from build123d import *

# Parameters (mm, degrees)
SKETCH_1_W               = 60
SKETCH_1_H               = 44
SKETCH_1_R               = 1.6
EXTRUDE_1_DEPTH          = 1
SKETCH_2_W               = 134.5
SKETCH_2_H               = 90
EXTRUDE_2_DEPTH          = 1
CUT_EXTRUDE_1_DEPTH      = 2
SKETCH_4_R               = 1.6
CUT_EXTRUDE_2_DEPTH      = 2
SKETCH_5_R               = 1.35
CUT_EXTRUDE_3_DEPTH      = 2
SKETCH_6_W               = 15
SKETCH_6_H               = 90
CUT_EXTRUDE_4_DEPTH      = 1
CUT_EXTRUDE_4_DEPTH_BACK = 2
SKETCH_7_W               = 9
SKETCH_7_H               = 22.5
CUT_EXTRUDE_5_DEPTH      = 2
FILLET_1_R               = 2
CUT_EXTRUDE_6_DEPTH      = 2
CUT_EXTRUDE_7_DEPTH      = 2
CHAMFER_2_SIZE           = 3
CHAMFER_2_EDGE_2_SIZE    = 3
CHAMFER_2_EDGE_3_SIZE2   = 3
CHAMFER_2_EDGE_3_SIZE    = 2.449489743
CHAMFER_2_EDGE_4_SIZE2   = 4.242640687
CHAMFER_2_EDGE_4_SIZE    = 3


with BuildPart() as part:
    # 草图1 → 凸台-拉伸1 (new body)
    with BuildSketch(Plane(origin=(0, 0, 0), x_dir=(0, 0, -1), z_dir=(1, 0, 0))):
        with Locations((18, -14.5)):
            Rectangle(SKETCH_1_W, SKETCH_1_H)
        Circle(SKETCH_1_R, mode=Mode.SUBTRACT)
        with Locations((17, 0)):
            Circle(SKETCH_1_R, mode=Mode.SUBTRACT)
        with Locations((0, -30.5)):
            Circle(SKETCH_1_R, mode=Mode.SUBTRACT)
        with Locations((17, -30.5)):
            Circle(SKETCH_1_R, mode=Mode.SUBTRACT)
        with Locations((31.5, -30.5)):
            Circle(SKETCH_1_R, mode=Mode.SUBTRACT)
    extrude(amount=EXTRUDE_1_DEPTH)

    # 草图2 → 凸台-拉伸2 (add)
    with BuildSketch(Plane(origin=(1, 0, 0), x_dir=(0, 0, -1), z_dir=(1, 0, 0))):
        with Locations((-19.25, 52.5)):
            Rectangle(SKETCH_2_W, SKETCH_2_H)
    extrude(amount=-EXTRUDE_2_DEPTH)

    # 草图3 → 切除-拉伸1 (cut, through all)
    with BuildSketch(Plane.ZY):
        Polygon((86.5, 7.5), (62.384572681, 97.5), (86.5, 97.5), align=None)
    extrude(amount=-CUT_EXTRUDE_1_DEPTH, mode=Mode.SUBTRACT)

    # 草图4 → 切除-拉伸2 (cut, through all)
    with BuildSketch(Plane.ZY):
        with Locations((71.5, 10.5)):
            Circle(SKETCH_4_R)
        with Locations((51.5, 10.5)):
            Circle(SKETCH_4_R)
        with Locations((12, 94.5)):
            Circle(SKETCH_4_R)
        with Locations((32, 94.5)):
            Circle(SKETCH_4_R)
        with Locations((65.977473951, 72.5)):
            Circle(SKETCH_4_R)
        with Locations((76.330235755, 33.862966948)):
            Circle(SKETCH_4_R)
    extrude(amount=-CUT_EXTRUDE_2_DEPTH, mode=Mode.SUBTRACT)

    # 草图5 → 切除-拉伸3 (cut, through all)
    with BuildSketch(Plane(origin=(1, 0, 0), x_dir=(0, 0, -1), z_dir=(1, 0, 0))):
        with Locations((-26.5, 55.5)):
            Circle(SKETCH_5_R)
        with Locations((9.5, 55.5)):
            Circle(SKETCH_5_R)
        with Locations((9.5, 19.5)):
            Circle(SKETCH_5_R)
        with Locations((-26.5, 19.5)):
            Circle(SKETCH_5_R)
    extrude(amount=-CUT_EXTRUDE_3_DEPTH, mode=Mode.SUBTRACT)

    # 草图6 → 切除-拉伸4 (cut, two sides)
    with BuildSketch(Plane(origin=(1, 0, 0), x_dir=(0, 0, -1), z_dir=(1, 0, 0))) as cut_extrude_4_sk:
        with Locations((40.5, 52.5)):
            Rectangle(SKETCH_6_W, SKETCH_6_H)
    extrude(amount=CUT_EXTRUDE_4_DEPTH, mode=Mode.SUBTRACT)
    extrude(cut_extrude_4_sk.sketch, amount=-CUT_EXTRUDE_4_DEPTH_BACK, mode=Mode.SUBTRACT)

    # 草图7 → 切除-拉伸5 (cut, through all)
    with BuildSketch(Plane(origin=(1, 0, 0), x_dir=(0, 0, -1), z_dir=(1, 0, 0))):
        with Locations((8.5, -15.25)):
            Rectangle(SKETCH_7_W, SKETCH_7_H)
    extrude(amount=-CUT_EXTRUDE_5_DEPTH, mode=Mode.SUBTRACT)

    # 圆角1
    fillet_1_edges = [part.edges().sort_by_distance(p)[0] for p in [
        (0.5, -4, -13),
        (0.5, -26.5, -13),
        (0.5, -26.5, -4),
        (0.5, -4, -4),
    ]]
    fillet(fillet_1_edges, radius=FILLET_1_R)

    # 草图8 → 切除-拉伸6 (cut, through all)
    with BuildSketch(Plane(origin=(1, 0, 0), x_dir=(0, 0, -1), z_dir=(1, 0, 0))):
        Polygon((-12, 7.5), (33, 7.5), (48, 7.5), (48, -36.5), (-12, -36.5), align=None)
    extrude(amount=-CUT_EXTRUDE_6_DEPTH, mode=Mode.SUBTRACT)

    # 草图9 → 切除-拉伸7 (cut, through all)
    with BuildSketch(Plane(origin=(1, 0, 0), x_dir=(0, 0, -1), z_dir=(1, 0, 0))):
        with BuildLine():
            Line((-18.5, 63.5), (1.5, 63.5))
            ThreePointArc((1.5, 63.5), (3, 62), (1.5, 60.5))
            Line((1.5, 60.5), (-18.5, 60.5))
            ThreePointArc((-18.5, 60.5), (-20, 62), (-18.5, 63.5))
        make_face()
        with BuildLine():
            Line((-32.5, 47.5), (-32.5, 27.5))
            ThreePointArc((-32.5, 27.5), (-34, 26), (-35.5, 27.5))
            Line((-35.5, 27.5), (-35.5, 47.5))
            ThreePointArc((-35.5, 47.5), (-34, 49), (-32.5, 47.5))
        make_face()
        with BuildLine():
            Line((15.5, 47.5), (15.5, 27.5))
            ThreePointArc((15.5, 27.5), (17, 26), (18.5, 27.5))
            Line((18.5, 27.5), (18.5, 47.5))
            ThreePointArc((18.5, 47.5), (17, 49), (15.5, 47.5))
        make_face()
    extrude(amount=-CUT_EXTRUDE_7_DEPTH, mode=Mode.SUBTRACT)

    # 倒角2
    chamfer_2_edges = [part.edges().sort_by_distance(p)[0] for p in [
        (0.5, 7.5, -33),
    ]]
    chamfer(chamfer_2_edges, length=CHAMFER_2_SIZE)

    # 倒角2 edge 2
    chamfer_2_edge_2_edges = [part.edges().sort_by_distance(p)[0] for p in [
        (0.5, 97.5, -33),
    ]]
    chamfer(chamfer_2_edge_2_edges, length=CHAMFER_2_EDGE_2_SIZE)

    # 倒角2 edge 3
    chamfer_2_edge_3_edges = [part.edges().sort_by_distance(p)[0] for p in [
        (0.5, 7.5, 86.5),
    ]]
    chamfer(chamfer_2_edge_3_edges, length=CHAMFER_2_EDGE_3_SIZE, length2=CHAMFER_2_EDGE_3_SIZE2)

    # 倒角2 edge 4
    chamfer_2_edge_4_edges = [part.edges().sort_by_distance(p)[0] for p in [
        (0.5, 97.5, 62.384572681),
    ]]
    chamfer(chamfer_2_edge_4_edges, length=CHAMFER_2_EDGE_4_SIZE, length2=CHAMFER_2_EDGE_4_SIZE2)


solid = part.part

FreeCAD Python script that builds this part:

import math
import FreeCAD as App
import Part
import Sketcher
Q = App.Units.Quantity


def edges_at(feature, points):
    """Names of the edges that pass closest to the given points."""
    edges = feature.Shape.Edges
    near = lambda p: min(range(len(edges)), key=lambda i: edges[i].distToShape(Part.Vertex(*p))[0])
    return sorted({f"Edge{near(p) + 1}" for p in points})

doc = App.newDocument("Part")
body = doc.addObject("PartDesign::Body", "Body")

# Sketch on YZ plane
sketch1 = doc.addObject("Sketcher::SketchObject", "Sketch")
body.addObject(sketch1)
sketch1.AttachmentSupport = (doc.YZ_Plane, [""])
sketch1.MapMode = "FlatFace"
sketch1.addGeometry(Part.LineSegment(App.Vector(7.5, 12, 0), App.Vector(-36.5, 12, 0)), False)
sketch1.addGeometry(Part.LineSegment(App.Vector(-36.5, 12, 0), App.Vector(-36.5, -48, 0)), False)
sketch1.addGeometry(Part.LineSegment(App.Vector(-36.5, -48, 0), App.Vector(7.5, -48, 0)), False)
sketch1.addGeometry(Part.LineSegment(App.Vector(7.5, -48, 0), App.Vector(7.5, 12, 0)), False)
sketch1.addGeometry(Part.Circle(App.Vector(-30.5, 0, 0), App.Vector(0, 0, 1), 1.6), False)
sketch1.addGeometry(Part.Circle(App.Vector(-30.5, -17, 0), App.Vector(0, 0, 1), 1.6), False)
sketch1.addGeometry(Part.Circle(App.Vector(-30.5, -31.5, 0), App.Vector(0, 0, 1), 1.6), False)
sketch1.addGeometry(Part.Circle(App.Vector(0, 0, 0), App.Vector(0, 0, 1), 1.6), False)
sketch1.addGeometry(Part.Circle(App.Vector(0, -17, 0), App.Vector(0, 0, 1), 1.6), False)
sketch1.addConstraint(Sketcher.Constraint("Coincident", 0, 2, 1, 1))
sketch1.addConstraint(Sketcher.Constraint("Coincident", 1, 2, 2, 1))
sketch1.addConstraint(Sketcher.Constraint("Coincident", 2, 2, 3, 1))
sketch1.addConstraint(Sketcher.Constraint("Coincident", 3, 2, 0, 1))
sketch1.addConstraint(Sketcher.Constraint("Horizontal", 0))
sketch1.addConstraint(Sketcher.Constraint("Vertical", 1))
sketch1.addConstraint(Sketcher.Constraint("Horizontal", 2))
sketch1.addConstraint(Sketcher.Constraint("Vertical", 3))
sketch1.addConstraint(Sketcher.Constraint("Coincident", 7, 3, -1, 1))
sketch1.addConstraint(Sketcher.Constraint("Equal", 4, 5))
sketch1.addConstraint(Sketcher.Constraint("Equal", 5, 6))
sketch1.addConstraint(Sketcher.Constraint("Equal", 6, 7))
sketch1.addConstraint(Sketcher.Constraint("Equal", 7, 8))
sketch1.addConstraint(Sketcher.Constraint("PointOnObject", 4, 3, -1))
sketch1.addConstraint(Sketcher.Constraint("PointOnObject", 8, 3, -2))
sketch1.addConstraint(Sketcher.Constraint("Horizontal", 5, 3, 8, 3))
sketch1.addConstraint(Sketcher.Constraint("Vertical", 4, 3, 5, 3))
sketch1.addConstraint(Sketcher.Constraint("Vertical", 5, 3, 6, 3))
sketch1.addConstraint(Sketcher.Constraint("Diameter", 4, 3.2))
sketch1.addConstraint(Sketcher.Constraint("DistanceX", 0, 2, 0, 1, 44.0))
sketch1.addConstraint(Sketcher.Constraint("DistanceY", 1, 2, 1, 1, 60.0))
sketch1.addConstraint(Sketcher.Constraint("DistanceY", 5, 3, -1, 1, 17.0))
sketch1.addConstraint(Sketcher.Constraint("DistanceY", -1, 1, 0, 2, 12.0))
sketch1.addConstraint(Sketcher.Constraint("DistanceX", 0, 2, 4, 3, 6.0))
sketch1.addConstraint(Sketcher.Constraint("DistanceX", 4, 3, -1, 1, 30.5))
sketch1.addConstraint(Sketcher.Constraint("DistanceY", 6, 3, -1, 1, 31.5))
pad1 = doc.addObject("PartDesign::Pad", "Pad")
body.addObject(pad1)
pad1.Profile = sketch1
pad1.Length = 1

# Sketch on YZ plane
sketch2 = doc.addObject("Sketcher::SketchObject", "Sketch001")
body.addObject(sketch2)
sketch2.AttachmentSupport = (doc.YZ_Plane, [""])
sketch2.MapMode = "FlatFace"
sketch2.AttachmentOffset = App.Placement(App.Vector(0, 0, 1), App.Rotation())
sketch2.addGeometry(Part.LineSegment(App.Vector(97.5, 86.5, 0), App.Vector(7.5, 86.5, 0)), False)
sketch2.addGeometry(Part.LineSegment(App.Vector(7.5, 86.5, 0), App.Vector(7.5, -48, 0)), False)
sketch2.addGeometry(Part.LineSegment(App.Vector(7.5, -48, 0), App.Vector(97.5, -48, 0)), False)
sketch2.addGeometry(Part.LineSegment(App.Vector(97.5, -48, 0), App.Vector(97.5, 86.5, 0)), False)
sketch2.addConstraint(Sketcher.Constraint("Coincident", 0, 2, 1, 1))
sketch2.addConstraint(Sketcher.Constraint("Coincident", 1, 2, 2, 1))
sketch2.addConstraint(Sketcher.Constraint("Coincident", 2, 2, 3, 1))
sketch2.addConstraint(Sketcher.Constraint("Coincident", 3, 2, 0, 1))
sketch2.addConstraint(Sketcher.Constraint("Horizontal", 0))
sketch2.addConstraint(Sketcher.Constraint("Vertical", 1))
sketch2.addConstraint(Sketcher.Constraint("Horizontal", 2))
sketch2.addConstraint(Sketcher.Constraint("Vertical", 3))
sketch2.addConstraint(Sketcher.Constraint("DistanceX", 0, 2, 0, 1, 90.0))
sketch2.addConstraint(Sketcher.Constraint("DistanceY", 1, 2, 1, 1, 134.5))
sketch2.addConstraint(Sketcher.Constraint("DistanceY", 1, 2, -1, 1, 48.0))
sketch2.addConstraint(Sketcher.Constraint("DistanceX", -1, 1, 0, 2, 7.5))
pad2 = doc.addObject("PartDesign::Pad", "Pad001")
body.addObject(pad2)
pad2.Profile = sketch2
pad2.Length = 1
pad2.Reversed = True

# Sketch on YZ plane
sketch3 = doc.addObject("Sketcher::SketchObject", "Sketch002")
body.addObject(sketch3)
sketch3.AttachmentSupport = (doc.YZ_Plane, [""])
sketch3.MapMode = "FlatFace"
sketch3.addGeometry(Part.LineSegment(App.Vector(97.5, 62.384573, 0), App.Vector(7.5, 86.5, 0)), False)
sketch3.addGeometry(Part.LineSegment(App.Vector(7.5, 86.5, 0), App.Vector(97.5, 86.5, 0)), False)
sketch3.addGeometry(Part.LineSegment(App.Vector(97.5, 86.5, 0), App.Vector(97.5, 62.384573, 0)), False)
sketch3.addConstraint(Sketcher.Constraint("Coincident", 0, 2, 1, 1))
sketch3.addConstraint(Sketcher.Constraint("Coincident", 1, 2, 2, 1))
sketch3.addConstraint(Sketcher.Constraint("Coincident", 2, 2, 0, 1))
sketch3.addConstraint(Sketcher.Constraint("Horizontal", 1))
sketch3.addConstraint(Sketcher.Constraint("Vertical", 2))
sketch3.addConstraint(Sketcher.Constraint("DistanceX", 1, 1, 1, 2, 90.0))
sketch3.addConstraint(Sketcher.Constraint("Angle", 0, Q("165 deg")))
sketch3.addConstraint(Sketcher.Constraint("DistanceX", -1, 1, 0, 2, 7.5))
sketch3.addConstraint(Sketcher.Constraint("DistanceY", -1, 1, 0, 2, 86.5))
pocket1 = doc.addObject("PartDesign::Pocket", "Pocket")
body.addObject(pocket1)
pocket1.Profile = sketch3
pocket1.Type = "ThroughAll"
pocket1.Reversed = True

# Sketch on YZ plane
sketch4 = doc.addObject("Sketcher::SketchObject", "Sketch003")
body.addObject(sketch4)
sketch4.AttachmentSupport = (doc.YZ_Plane, [""])
sketch4.MapMode = "FlatFace"
sketch4.addGeometry(Part.Circle(App.Vector(10.5, 71.5, 0), App.Vector(0, 0, 1), 1.6), False)
sketch4.addGeometry(Part.Circle(App.Vector(10.5, 51.5, 0), App.Vector(0, 0, 1), 1.6), False)
sketch4.addGeometry(Part.Circle(App.Vector(94.5, 12, 0), App.Vector(0, 0, 1), 1.6), False)
sketch4.addGeometry(Part.Circle(App.Vector(94.5, 32, 0), App.Vector(0, 0, 1), 1.6), False)
sketch4.addGeometry(Part.Circle(App.Vector(72.5, 65.977474, 0), App.Vector(0, 0, 1), 1.6), False)
sketch4.addGeometry(Part.Circle(App.Vector(33.862967, 76.330236, 0), App.Vector(0, 0, 1), 1.6), False)
sketch4.addConstraint(Sketcher.Constraint("Equal", 0, 1))
sketch4.addConstraint(Sketcher.Constraint("Equal", 1, 2))
sketch4.addConstraint(Sketcher.Constraint("Equal", 2, 3))
sketch4.addConstraint(Sketcher.Constraint("Equal", 3, 4))
sketch4.addConstraint(Sketcher.Constraint("Equal", 4, 5))
sketch4.addConstraint(Sketcher.Constraint("Vertical", 0, 3, 1, 3))
sketch4.addConstraint(Sketcher.Constraint("Vertical", 2, 3, 3, 3))
sketch4.addConstraint(Sketcher.Constraint("Diameter", 0, 3.2))
sketch4.addConstraint(Sketcher.Constraint("DistanceY", -1, 1, 2, 3, 12.0))
sketch4.addConstraint(Sketcher.Constraint("DistanceY", -1, 1, 3, 3, 32.0))
sketch4.addConstraint(Sketcher.Constraint("DistanceY", 1, 3, 0, 3, 20.0))
sketch4.addConstraint(Sketcher.Constraint("DistanceX", 1, 3, 2, 3, 84.0))
sketch4.addConstraint(Sketcher.Constraint("DistanceX", 4, 3, 3, 3, 22.0))
sketch4.addConstraint(Sketcher.Constraint("DistanceX", -1, 1, 0, 3, 10.5))
sketch4.addConstraint(Sketcher.Constraint("DistanceY", -1, 1, 0, 3, 71.5))
sketch4.addConstraint(Sketcher.Constraint("DistanceY", 4, 3, 5, 3, 10.352762))
sketch4.addConstraint(Sketcher.Constraint("DistanceY", -1, 1, 4, 3, 65.977474))
sketch4.addConstraint(Sketcher.Constraint("DistanceX", -1, 1, 5, 3, 33.862967))
pocket2 = doc.addObject("PartDesign::Pocket", "Pocket001")
body.addObject(pocket2)
pocket2.Profile = sketch4
pocket2.Type = "ThroughAll"
pocket2.Reversed = True

# Sketch on YZ plane
sketch5 = doc.addObject("Sketcher::SketchObject", "Sketch004")
body.addObject(sketch5)
sketch5.AttachmentSupport = (doc.YZ_Plane, [""])
sketch5.MapMode = "FlatFace"
sketch5.AttachmentOffset = App.Placement(App.Vector(0, 0, 1), App.Rotation())
sketch5.addGeometry(Part.Circle(App.Vector(55.5, 26.5, 0), App.Vector(0, 0, 1), 1.35), False)
sketch5.addGeometry(Part.Circle(App.Vector(55.5, -9.5, 0), App.Vector(0, 0, 1), 1.35), False)
sketch5.addGeometry(Part.Circle(App.Vector(19.5, -9.5, 0), App.Vector(0, 0, 1), 1.35), False)
sketch5.addGeometry(Part.Circle(App.Vector(19.5, 26.5, 0), App.Vector(0, 0, 1), 1.35), False)
sketch5.addConstraint(Sketcher.Constraint("Equal", 0, 1))
sketch5.addConstraint(Sketcher.Constraint("Equal", 1, 2))
sketch5.addConstraint(Sketcher.Constraint("Equal", 2, 3))
sketch5.addConstraint(Sketcher.Constraint("Horizontal", 1, 3, 2, 3))
sketch5.addConstraint(Sketcher.Constraint("Horizontal", 0, 3, 3, 3))
sketch5.addConstraint(Sketcher.Constraint("Vertical", 0, 3, 1, 3))
sketch5.addConstraint(Sketcher.Constraint("Vertical", 2, 3, 3, 3))
sketch5.addConstraint(Sketcher.Constraint("Diameter", 0, 2.7))
sketch5.addConstraint(Sketcher.Constraint("DistanceY", 1, 3, 0, 3, 36.0))
sketch5.addConstraint(Sketcher.Constraint("DistanceX", 2, 3, 1, 3, 36.0))
sketch5.addConstraint(Sketcher.Constraint("DistanceX", -1, 1, 0, 3, 55.5))
sketch5.addConstraint(Sketcher.Constraint("DistanceY", -1, 1, 0, 3, 26.5))
pocket3 = doc.addObject("PartDesign::Pocket", "Pocket002")
body.addObject(pocket3)
pocket3.Profile = sketch5
pocket3.Type = "ThroughAll"

# Sketch on YZ plane
sketch6 = doc.addObject("Sketcher::SketchObject", "Sketch005")
body.addObject(sketch6)
sketch6.AttachmentSupport = (doc.YZ_Plane, [""])
sketch6.MapMode = "FlatFace"
sketch6.AttachmentOffset = App.Placement(App.Vector(0, 0, 1), App.Rotation())
sketch6.addGeometry(Part.LineSegment(App.Vector(97.5, -33, 0), App.Vector(7.5, -33, 0)), False)
sketch6.addGeometry(Part.LineSegment(App.Vector(7.5, -33, 0), App.Vector(7.5, -48, 0)), False)
sketch6.addGeometry(Part.LineSegment(App.Vector(7.5, -48, 0), App.Vector(97.5, -48, 0)), False)
sketch6.addGeometry(Part.LineSegment(App.Vector(97.5, -48, 0), App.Vector(97.5, -33, 0)), False)
sketch6.addConstraint(Sketcher.Constraint("Coincident", 0, 2, 1, 1))
sketch6.addConstraint(Sketcher.Constraint("Coincident", 1, 2, 2, 1))
sketch6.addConstraint(Sketcher.Constraint("Coincident", 2, 2, 3, 1))
sketch6.addConstraint(Sketcher.Constraint("Coincident", 3, 2, 0, 1))
sketch6.addConstraint(Sketcher.Constraint("Horizontal", 0))
sketch6.addConstraint(Sketcher.Constraint("Vertical", 1))
sketch6.addConstraint(Sketcher.Constraint("Horizontal", 2))
sketch6.addConstraint(Sketcher.Constraint("Vertical", 3))
sketch6.addConstraint(Sketcher.Constraint("DistanceX", 0, 2, 0, 1, 90.0))
sketch6.addConstraint(Sketcher.Constraint("DistanceY", 1, 2, 1, 1, 15.0))
sketch6.addConstraint(Sketcher.Constraint("DistanceY", 0, 2, -1, 1, 33.0))
sketch6.addConstraint(Sketcher.Constraint("DistanceX", -1, 1, 0, 2, 7.5))
pocket4 = doc.addObject("PartDesign::Pocket", "Pocket003")
body.addObject(pocket4)
pocket4.Profile = sketch6
pocket4.Type = "ThroughAll"
pocket4.Midplane = True

# Sketch on YZ plane
sketch7 = doc.addObject("Sketcher::SketchObject", "Sketch006")
body.addObject(sketch7)
sketch7.AttachmentSupport = (doc.YZ_Plane, [""])
sketch7.MapMode = "FlatFace"
sketch7.AttachmentOffset = App.Placement(App.Vector(0, 0, 1), App.Rotation())
sketch7.addGeometry(Part.LineSegment(App.Vector(-4, -4, 0), App.Vector(-26.5, -4, 0)), False)
sketch7.addGeometry(Part.LineSegment(App.Vector(-26.5, -4, 0), App.Vector(-26.5, -13, 0)), False)
sketch7.addGeometry(Part.LineSegment(App.Vector(-26.5, -13, 0), App.Vector(-4, -13, 0)), False)
sketch7.addGeometry(Part.LineSegment(App.Vector(-4, -13, 0), App.Vector(-4, -4, 0)), False)
sketch7.addConstraint(Sketcher.Constraint("Coincident", 0, 2, 1, 1))
sketch7.addConstraint(Sketcher.Constraint("Coincident", 1, 2, 2, 1))
sketch7.addConstraint(Sketcher.Constraint("Coincident", 2, 2, 3, 1))
sketch7.addConstraint(Sketcher.Constraint("Coincident", 3, 2, 0, 1))
sketch7.addConstraint(Sketcher.Constraint("Horizontal", 0))
sketch7.addConstraint(Sketcher.Constraint("Vertical", 1))
sketch7.addConstraint(Sketcher.Constraint("Horizontal", 2))
sketch7.addConstraint(Sketcher.Constraint("Vertical", 3))
sketch7.addConstraint(Sketcher.Constraint("DistanceY", 1, 2, 1, 1, 9.0))
sketch7.addConstraint(Sketcher.Constraint("DistanceX", 0, 2, 0, 1, 22.5))
sketch7.addConstraint(Sketcher.Constraint("DistanceY", 0, 2, -1, 1, 4.0))
sketch7.addConstraint(Sketcher.Constraint("DistanceX", 2, 2, -1, 1, 4.0))
pocket5 = doc.addObject("PartDesign::Pocket", "Pocket004")
body.addObject(pocket5)
pocket5.Profile = sketch7
pocket5.Type = "ThroughAll"
doc.recompute()

fillet = doc.addObject("PartDesign::Fillet", "Fillet")
body.addObject(fillet)
fillet.Base = (pocket5, edges_at(pocket5, [
    (0.5, -4, -13),
    (0.5, -26.5, -13),
    (0.5, -26.5, -4),
    (0.5, -4, -4),
]))
fillet.Radius = 2

# Sketch on YZ plane
sketch8 = doc.addObject("Sketcher::SketchObject", "Sketch007")
body.addObject(sketch8)
sketch8.AttachmentSupport = (doc.YZ_Plane, [""])
sketch8.MapMode = "FlatFace"
sketch8.AttachmentOffset = App.Placement(App.Vector(0, 0, 1), App.Rotation())
sketch8.addGeometry(Part.LineSegment(App.Vector(7.5, -48, 0), App.Vector(7.5, 12, 0)), False)
sketch8.addGeometry(Part.LineSegment(App.Vector(7.5, 12, 0), App.Vector(-36.5, 12, 0)), False)
sketch8.addGeometry(Part.LineSegment(App.Vector(-36.5, 12, 0), App.Vector(-36.5, -48, 0)), False)
sketch8.addGeometry(Part.LineSegment(App.Vector(-36.5, -48, 0), App.Vector(7.5, -48, 0)), False)
sketch8.addConstraint(Sketcher.Constraint("Coincident", 0, 2, 1, 1))
sketch8.addConstraint(Sketcher.Constraint("Coincident", 1, 2, 2, 1))
sketch8.addConstraint(Sketcher.Constraint("Coincident", 2, 2, 3, 1))
sketch8.addConstraint(Sketcher.Constraint("Coincident", 3, 2, 0, 1))
sketch8.addConstraint(Sketcher.Constraint("Vertical", 0))
sketch8.addConstraint(Sketcher.Constraint("Horizontal", 1))
sketch8.addConstraint(Sketcher.Constraint("Vertical", 2))
sketch8.addConstraint(Sketcher.Constraint("Horizontal", 3))
sketch8.addConstraint(Sketcher.Constraint("DistanceX", 1, 2, 1, 1, 44.0))
sketch8.addConstraint(Sketcher.Constraint("DistanceY", 0, 1, 0, 2, 60.0))
sketch8.addConstraint(Sketcher.Constraint("DistanceY", -1, 1, 0, 2, 12.0))
sketch8.addConstraint(Sketcher.Constraint("DistanceX", -1, 1, 0, 2, 7.5))
pocket6 = doc.addObject("PartDesign::Pocket", "Pocket005")
body.addObject(pocket6)
pocket6.Profile = sketch8
pocket6.Type = "ThroughAll"

# Sketch on YZ plane
sketch9 = doc.addObject("Sketcher::SketchObject", "Sketch008")
body.addObject(sketch9)
sketch9.AttachmentSupport = (doc.YZ_Plane, [""])
sketch9.MapMode = "FlatFace"
sketch9.AttachmentOffset = App.Placement(App.Vector(0, 0, 1), App.Rotation())
sketch9.addGeometry(Part.LineSegment(App.Vector(63.5, -1.5, 0), App.Vector(63.5, 18.5, 0)), False)
sketch9.addGeometry(Part.ArcOfCircle(Part.Circle(App.Vector(62, 18.5, 0), App.Vector(0, 0, 1), 1.5), math.radians(0), math.radians(180)), False)
sketch9.addGeometry(Part.LineSegment(App.Vector(60.5, 18.5, 0), App.Vector(60.5, -1.5, 0)), False)
sketch9.addGeometry(Part.ArcOfCircle(Part.Circle(App.Vector(62, -1.5, 0), App.Vector(0, 0, 1), 1.5), math.radians(180), math.radians(360)), False)
sketch9.addGeometry(Part.LineSegment(App.Vector(27.5, 32.5, 0), App.Vector(47.5, 32.5, 0)), False)
sketch9.addGeometry(Part.ArcOfCircle(Part.Circle(App.Vector(47.5, 34, 0), App.Vector(0, 0, 1), 1.5), math.radians(-90), math.radians(90)), False)
sketch9.addGeometry(Part.LineSegment(App.Vector(47.5, 35.5, 0), App.Vector(27.5, 35.5, 0)), False)
sketch9.addGeometry(Part.ArcOfCircle(Part.Circle(App.Vector(27.5, 34, 0), App.Vector(0, 0, 1), 1.5), math.radians(90), math.radians(270)), False)
sketch9.addGeometry(Part.LineSegment(App.Vector(47.5, -15.5, 0), App.Vector(27.5, -15.5, 0)), False)
sketch9.addGeometry(Part.ArcOfCircle(Part.Circle(App.Vector(27.5, -17, 0), App.Vector(0, 0, 1), 1.5), math.radians(90), math.radians(270)), False)
sketch9.addGeometry(Part.LineSegment(App.Vector(27.5, -18.5, 0), App.Vector(47.5, -18.5, 0)), False)
sketch9.addGeometry(Part.ArcOfCircle(Part.Circle(App.Vector(47.5, -17, 0), App.Vector(0, 0, 1), 1.5), math.radians(-90), math.radians(90)), False)
sketch9.addConstraint(Sketcher.Constraint("Tangent", 0, 2, 1, 1))
sketch9.addConstraint(Sketcher.Constraint("Tangent", 1, 2, 2, 1))
sketch9.addConstraint(Sketcher.Constraint("Tangent", 2, 2, 3, 1))
sketch9.addConstraint(Sketcher.Constraint("Tangent", 3, 2, 0, 1))
sketch9.addConstraint(Sketcher.Constraint("Tangent", 4, 2, 5, 1))
sketch9.addConstraint(Sketcher.Constraint("Tangent", 5, 2, 6, 1))
sketch9.addConstraint(Sketcher.Constraint("Tangent", 6, 2, 7, 1))
sketch9.addConstraint(Sketcher.Constraint("Tangent", 7, 2, 4, 1))
sketch9.addConstraint(Sketcher.Constraint("Tangent", 8, 2, 9, 1))
sketch9.addConstraint(Sketcher.Constraint("Tangent", 9, 2, 10, 1))
sketch9.addConstraint(Sketcher.Constraint("Tangent", 10, 2, 11, 1))
sketch9.addConstraint(Sketcher.Constraint("Tangent", 11, 2, 8, 1))
sketch9.addConstraint(Sketcher.Constraint("Vertical", 0))
sketch9.addConstraint(Sketcher.Constraint("Vertical", 2))
sketch9.addConstraint(Sketcher.Constraint("Horizontal", 4))
sketch9.addConstraint(Sketcher.Constraint("Horizontal", 6))
sketch9.addConstraint(Sketcher.Constraint("Horizontal", 8))
sketch9.addConstraint(Sketcher.Constraint("Horizontal", 10))
sketch9.addConstraint(Sketcher.Constraint("Equal", 3, 5))
sketch9.addConstraint(Sketcher.Constraint("Equal", 7, 9))
sketch9.addConstraint(Sketcher.Constraint("Vertical", 7, 3, 9, 3))
sketch9.addConstraint(Sketcher.Constraint("Vertical", 5, 3, 11, 3))
sketch9.addConstraint(Sketcher.Constraint("Equal", 10, 0))
sketch9.addConstraint(Sketcher.Constraint("Radius", 1, 1.5))
sketch9.addConstraint(Sketcher.Constraint("DistanceX", 4, 1, 4, 2, 20.0))
sketch9.addConstraint(Sketcher.Constraint("DistanceX", -1, 1, 1, 3, 62.0))
sketch9.addConstraint(Sketcher.Constraint("DistanceY", -1, 1, 5, 3, 34.0))
sketch9.addConstraint(Sketcher.Constraint("DistanceY", 9, 3, -1, 1, 17.0))
sketch9.addConstraint(Sketcher.Constraint("DistanceX", 5, 3, 0, 2, 16.0))
sketch9.addConstraint(Sketcher.Constraint("DistanceY", 1, 2, 4, 2, 14.0))
pocket7 = doc.addObject("PartDesign::Pocket", "Pocket006")
body.addObject(pocket7)
pocket7.Profile = sketch9
pocket7.Type = "ThroughAll"
doc.recompute()

chamfer = doc.addObject("PartDesign::Chamfer", "Chamfer")
body.addObject(chamfer)
chamfer.Base = (pocket7, edges_at(pocket7, [(0.5, 7.5, -33)]))
chamfer.Size = 3
doc.recompute()

chamfer2 = doc.addObject("PartDesign::Chamfer", "Chamfer001")
body.addObject(chamfer2)
chamfer2.Base = (chamfer, edges_at(chamfer, [(0.5, 97.5, -33)]))
chamfer2.Size = 3
doc.recompute()

chamfer3 = doc.addObject("PartDesign::Chamfer", "Chamfer002")
body.addObject(chamfer3)
chamfer3.Base = (chamfer2, edges_at(chamfer2, [(0.5, 7.5, 86.5)]))
chamfer3.ChamferType = "Two distances"
chamfer3.Size = 2.44949
chamfer3.Size2 = 3
doc.recompute()

chamfer4 = doc.addObject("PartDesign::Chamfer", "Chamfer003")
body.addObject(chamfer4)
chamfer4.Base = (chamfer3, edges_at(chamfer3, [(0.5, 97.5, 62.385)]))
chamfer4.ChamferType = "Two distances"
chamfer4.Size = 3
chamfer4.Size2 = 4.242641

doc.recompute()
